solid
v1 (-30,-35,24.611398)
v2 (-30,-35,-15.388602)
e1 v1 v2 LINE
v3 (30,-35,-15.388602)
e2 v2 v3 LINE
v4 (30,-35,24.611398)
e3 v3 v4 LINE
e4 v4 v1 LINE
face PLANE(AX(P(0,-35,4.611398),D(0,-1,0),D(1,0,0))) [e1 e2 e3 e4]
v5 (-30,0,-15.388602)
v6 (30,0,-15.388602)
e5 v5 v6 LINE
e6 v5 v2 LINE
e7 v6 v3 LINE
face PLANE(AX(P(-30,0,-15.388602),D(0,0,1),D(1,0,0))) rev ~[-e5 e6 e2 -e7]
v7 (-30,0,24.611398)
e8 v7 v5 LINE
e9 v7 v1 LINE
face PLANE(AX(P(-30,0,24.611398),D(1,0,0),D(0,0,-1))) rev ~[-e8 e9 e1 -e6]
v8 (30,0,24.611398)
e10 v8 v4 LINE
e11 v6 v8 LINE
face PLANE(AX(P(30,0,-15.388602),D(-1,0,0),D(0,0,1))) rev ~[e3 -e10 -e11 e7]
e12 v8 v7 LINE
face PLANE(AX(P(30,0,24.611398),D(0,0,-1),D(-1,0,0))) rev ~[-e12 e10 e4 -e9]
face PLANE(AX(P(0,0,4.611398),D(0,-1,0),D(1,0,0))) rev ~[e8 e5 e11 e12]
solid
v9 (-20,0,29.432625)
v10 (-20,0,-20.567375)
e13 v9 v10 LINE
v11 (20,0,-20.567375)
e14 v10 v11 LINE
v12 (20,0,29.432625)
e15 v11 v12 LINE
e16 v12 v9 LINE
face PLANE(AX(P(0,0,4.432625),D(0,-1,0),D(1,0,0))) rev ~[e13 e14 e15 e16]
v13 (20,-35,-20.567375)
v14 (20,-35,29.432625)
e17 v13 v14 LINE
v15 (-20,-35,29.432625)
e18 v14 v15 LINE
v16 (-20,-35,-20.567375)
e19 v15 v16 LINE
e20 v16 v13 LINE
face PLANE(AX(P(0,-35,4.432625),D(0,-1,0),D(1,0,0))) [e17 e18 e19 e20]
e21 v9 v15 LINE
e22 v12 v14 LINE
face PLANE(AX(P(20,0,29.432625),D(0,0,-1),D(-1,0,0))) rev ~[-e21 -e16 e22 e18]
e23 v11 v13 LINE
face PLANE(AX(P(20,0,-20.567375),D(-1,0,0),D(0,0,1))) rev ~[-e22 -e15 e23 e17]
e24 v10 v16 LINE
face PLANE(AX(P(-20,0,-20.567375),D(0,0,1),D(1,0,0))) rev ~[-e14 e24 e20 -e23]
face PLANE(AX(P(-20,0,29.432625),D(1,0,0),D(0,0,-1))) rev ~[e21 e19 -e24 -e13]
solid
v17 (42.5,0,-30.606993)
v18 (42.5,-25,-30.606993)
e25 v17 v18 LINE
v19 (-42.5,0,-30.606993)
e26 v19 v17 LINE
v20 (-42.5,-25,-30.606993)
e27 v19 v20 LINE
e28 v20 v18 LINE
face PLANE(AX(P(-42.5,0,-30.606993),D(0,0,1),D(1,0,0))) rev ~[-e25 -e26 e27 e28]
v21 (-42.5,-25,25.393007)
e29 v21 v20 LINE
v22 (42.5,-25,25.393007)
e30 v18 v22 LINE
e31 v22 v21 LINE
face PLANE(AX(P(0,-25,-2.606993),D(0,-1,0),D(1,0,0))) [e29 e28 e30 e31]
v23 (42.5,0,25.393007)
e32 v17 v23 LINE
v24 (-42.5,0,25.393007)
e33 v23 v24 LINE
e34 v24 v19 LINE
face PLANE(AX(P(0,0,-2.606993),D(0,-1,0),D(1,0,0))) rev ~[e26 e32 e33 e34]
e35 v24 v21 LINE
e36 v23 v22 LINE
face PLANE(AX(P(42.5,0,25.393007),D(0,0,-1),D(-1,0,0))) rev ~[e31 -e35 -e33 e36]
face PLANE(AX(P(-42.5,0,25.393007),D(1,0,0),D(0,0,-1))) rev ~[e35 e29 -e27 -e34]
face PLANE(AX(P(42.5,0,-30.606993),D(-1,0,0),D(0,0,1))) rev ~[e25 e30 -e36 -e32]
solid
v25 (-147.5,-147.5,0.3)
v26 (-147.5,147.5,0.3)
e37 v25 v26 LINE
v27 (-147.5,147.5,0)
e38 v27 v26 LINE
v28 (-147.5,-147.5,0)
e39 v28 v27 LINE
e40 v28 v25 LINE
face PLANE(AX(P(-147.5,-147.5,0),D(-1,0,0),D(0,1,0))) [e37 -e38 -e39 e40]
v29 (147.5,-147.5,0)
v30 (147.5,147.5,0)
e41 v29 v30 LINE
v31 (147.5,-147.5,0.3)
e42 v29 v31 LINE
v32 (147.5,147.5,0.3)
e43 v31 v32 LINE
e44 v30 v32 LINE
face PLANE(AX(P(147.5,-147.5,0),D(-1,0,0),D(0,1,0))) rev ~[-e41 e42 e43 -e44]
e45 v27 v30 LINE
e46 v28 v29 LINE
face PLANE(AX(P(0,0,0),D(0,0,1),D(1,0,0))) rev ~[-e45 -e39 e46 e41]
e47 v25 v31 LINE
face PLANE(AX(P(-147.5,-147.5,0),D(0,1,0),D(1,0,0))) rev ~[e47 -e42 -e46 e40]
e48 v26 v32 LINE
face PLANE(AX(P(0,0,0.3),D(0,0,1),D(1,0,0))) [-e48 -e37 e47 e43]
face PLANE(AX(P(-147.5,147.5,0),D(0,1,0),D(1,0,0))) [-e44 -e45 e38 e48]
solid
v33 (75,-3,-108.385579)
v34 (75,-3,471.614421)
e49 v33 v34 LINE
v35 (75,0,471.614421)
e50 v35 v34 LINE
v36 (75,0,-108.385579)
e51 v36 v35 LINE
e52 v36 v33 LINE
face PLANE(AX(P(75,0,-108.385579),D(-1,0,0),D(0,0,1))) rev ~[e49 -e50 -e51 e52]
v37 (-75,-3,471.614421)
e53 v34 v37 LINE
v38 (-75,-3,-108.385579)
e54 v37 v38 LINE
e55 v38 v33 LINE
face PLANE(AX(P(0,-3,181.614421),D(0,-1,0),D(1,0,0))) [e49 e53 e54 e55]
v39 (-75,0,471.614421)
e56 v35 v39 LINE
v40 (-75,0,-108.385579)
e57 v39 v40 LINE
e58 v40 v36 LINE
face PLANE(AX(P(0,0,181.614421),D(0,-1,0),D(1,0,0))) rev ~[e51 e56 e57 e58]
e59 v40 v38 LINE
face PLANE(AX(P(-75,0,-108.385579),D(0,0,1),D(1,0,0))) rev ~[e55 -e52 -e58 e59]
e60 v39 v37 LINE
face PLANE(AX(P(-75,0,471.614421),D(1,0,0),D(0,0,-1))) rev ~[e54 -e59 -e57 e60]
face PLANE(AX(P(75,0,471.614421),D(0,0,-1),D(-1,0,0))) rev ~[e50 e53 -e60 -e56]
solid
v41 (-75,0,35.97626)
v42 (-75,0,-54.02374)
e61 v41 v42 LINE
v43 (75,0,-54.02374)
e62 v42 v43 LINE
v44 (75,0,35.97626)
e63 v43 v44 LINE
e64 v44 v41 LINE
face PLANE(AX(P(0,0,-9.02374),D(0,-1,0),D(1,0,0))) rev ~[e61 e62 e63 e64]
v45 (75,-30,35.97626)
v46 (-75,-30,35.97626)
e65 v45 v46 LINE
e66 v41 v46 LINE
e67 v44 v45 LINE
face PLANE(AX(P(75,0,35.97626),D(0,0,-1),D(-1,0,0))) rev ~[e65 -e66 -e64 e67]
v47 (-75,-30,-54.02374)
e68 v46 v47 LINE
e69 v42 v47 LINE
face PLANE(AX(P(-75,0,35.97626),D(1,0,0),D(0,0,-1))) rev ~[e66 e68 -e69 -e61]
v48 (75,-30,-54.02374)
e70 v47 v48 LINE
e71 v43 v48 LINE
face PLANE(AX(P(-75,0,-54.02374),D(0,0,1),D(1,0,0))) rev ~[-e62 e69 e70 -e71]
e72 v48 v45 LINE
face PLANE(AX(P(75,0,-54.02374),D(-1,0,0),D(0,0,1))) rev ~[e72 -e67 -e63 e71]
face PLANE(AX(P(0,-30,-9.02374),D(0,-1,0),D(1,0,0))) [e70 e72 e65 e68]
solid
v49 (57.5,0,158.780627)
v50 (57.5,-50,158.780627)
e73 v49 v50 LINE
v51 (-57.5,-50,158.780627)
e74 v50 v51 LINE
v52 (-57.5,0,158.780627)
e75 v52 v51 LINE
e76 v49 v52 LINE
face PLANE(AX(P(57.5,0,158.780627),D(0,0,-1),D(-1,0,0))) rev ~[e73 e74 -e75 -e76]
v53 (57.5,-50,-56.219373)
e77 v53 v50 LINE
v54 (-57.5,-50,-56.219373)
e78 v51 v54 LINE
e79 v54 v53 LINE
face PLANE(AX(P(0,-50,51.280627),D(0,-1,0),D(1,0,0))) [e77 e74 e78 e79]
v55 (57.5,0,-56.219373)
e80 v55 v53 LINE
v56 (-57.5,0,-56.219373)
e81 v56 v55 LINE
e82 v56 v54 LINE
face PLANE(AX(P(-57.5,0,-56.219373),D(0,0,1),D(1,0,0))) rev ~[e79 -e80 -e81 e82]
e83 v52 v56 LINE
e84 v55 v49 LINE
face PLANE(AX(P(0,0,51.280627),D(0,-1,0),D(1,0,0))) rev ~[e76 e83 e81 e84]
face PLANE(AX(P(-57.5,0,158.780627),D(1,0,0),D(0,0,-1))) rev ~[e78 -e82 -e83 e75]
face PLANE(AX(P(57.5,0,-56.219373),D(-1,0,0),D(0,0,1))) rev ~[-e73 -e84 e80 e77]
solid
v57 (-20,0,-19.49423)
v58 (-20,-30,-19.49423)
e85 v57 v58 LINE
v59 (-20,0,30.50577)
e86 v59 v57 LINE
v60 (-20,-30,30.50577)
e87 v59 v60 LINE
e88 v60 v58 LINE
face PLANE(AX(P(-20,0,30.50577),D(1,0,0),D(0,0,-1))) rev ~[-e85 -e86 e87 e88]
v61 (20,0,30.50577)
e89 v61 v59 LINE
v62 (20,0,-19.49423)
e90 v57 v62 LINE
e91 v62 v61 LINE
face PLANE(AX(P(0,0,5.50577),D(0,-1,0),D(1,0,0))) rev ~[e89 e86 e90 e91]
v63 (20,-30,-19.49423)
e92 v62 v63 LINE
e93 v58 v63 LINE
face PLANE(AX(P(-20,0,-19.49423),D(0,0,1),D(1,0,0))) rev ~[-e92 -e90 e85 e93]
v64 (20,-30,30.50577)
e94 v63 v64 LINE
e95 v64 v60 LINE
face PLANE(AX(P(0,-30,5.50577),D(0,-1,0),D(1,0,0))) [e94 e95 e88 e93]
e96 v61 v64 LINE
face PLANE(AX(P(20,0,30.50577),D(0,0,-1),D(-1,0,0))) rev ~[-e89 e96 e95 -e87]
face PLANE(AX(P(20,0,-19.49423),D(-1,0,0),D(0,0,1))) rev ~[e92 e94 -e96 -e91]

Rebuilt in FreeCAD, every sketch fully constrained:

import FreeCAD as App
import Part
import Sketcher
from FreeCAD import Vector
Q = App.Units.Quantity

doc = App.newDocument("Part")
params = doc.addObject("Spreadsheet::Sheet", "Params")
for row, (alias, value) in enumerate([
    ("sketch1_width", "115 mm"),
    ("sketch1_height", "215 mm"),
    ("pad1_length", "50 mm"),
    ("sketch2_width", "85 mm"),
    ("sketch2_height", "56 mm"),
    ("pad2_length", "25 mm"),
    ("sketch3_width", "60 mm"),
    ("sketch3_height", "40 mm"),
    ("pad3_length", "35 mm"),
    ("sketch4_width", "150 mm"),
    ("sketch4_height", "90 mm"),
    ("pad4_length", "30 mm"),
    ("sketch5_width", "150 mm"),
    ("sketch5_height", "580 mm"),
    ("pad5_length", "3 mm"),
    ("sketch6_width", "40 mm"),
    ("sketch6_height", "50 mm"),
    ("pad6_length", "30 mm"),
    ("sketch7_width", "40 mm"),
    ("sketch7_height", "50 mm"),
    ("pad7_length", "35 mm"),
    ("sketch8_width", "295 mm"),
    ("pad8_length", "0.3 mm"),
], start=1):
    params.set(f"A{row}", alias)
    params.set(f"B{row}", "=" + value)
    params.setAlias(f"B{row}", alias)

body = doc.addObject("PartDesign::Body", "Body")

# Sketch on XZ plane
sketch1 = doc.addObject("Sketcher::SketchObject", "Sketch")
body.addObject(sketch1)
sketch1.AttachmentSupport = (doc.XZ_Plane, [""])
sketch1.MapMode = "FlatFace"
sketch1.addGeometry(Part.LineSegment(Vector(57.5, 158.780627, 0), Vector(-57.5, 158.780627, 0)), False)
sketch1.addGeometry(Part.LineSegment(Vector(-57.5, 158.780627, 0), Vector(-57.5, -56.219373, 0)), False)
sketch1.addGeometry(Part.LineSegment(Vector(-57.5, -56.219373, 0), Vector(57.5, -56.219373, 0)), False)
sketch1.addGeometry(Part.LineSegment(Vector(57.5, -56.219373, 0), Vector(57.5, 158.780627, 0)), False)
sketch1.addConstraint(Sketcher.Constraint("Coincident", 0, 2, 1, 1))
sketch1.addConstraint(Sketcher.Constraint("Coincident", 1, 2, 2, 1))
sketch1.addConstraint(Sketcher.Constraint("Coincident", 2, 2, 3, 1))
sketch1.addConstraint(Sketcher.Constraint("Coincident", 3, 2, 0, 1))
sketch1.addConstraint(Sketcher.Constraint("Horizontal", 0))
sketch1.addConstraint(Sketcher.Constraint("Vertical", 1))
sketch1.addConstraint(Sketcher.Constraint("Horizontal", 2))
sketch1.addConstraint(Sketcher.Constraint("Vertical", 3))
sketch1.addConstraint(Sketcher.Constraint("DistanceX", 0, 2, 0, 1, Q("115 mm")))
sketch1.addConstraint(Sketcher.Constraint("DistanceY", 1, 2, 1, 1, Q("215 mm")))
sketch1.addConstraint(Sketcher.Constraint("DistanceX", 0, 2, -1, 1, Q("57.5 mm")))
sketch1.addConstraint(Sketcher.Constraint("DistanceY", -1, 1, 0, 2, Q("158.780627 mm")))
sketch1.setExpression("Constraints[8]", "Params.sketch1_width")
sketch1.setExpression("Constraints[9]", "Params.sketch1_height")
pad1 = doc.addObject("PartDesign::Pad", "Pad")
body.addObject(pad1)
pad1.Profile = sketch1
pad1.setExpression("Length", "Params.pad1_length")
body2 = doc.addObject("PartDesign::Body", "Body001")

# Sketch on XZ plane
sketch2 = doc.addObject("Sketcher::SketchObject", "Sketch001")
body2.addObject(sketch2)
sketch2.AttachmentSupport = (doc.getObject("XZ_Plane001"), [""])
sketch2.MapMode = "FlatFace"
sketch2.addGeometry(Part.LineSegment(Vector(42.5, 25.393007, 0), Vector(-42.5, 25.393007, 0)), False)
sketch2.addGeometry(Part.LineSegment(Vector(-42.5, 25.393007, 0), Vector(-42.5, -30.606993, 0)), False)
sketch2.addGeometry(Part.LineSegment(Vector(-42.5, -30.606993, 0), Vector(42.5, -30.606993, 0)), False)
sketch2.addGeometry(Part.LineSegment(Vector(42.5, -30.606993, 0), Vector(42.5, 25.393007, 0)), False)
sketch2.addConstraint(Sketcher.Constraint("Coincident", 0, 2, 1, 1))
sketch2.addConstraint(Sketcher.Constraint("Coincident", 1, 2, 2, 1))
sketch2.addConstraint(Sketcher.Constraint("Coincident", 2, 2, 3, 1))
sketch2.addConstraint(Sketcher.Constraint("Coincident", 3, 2, 0, 1))
sketch2.addConstraint(Sketcher.Constraint("Horizontal", 0))
sketch2.addConstraint(Sketcher.Constraint("Vertical", 1))
sketch2.addConstraint(Sketcher.Constraint("Horizontal", 2))
sketch2.addConstraint(Sketcher.Constraint("Vertical", 3))
sketch2.addConstraint(Sketcher.Constraint("DistanceX", 0, 2, 0, 1, Q("85 mm")))
sketch2.addConstraint(Sketcher.Constraint("DistanceY", 1, 2, 1, 1, Q("56 mm")))
sketch2.addConstraint(Sketcher.Constraint("DistanceX", 0, 2, -1, 1, Q("42.5 mm")))
sketch2.addConstraint(Sketcher.Constraint("DistanceY", -1, 1, 0, 2, Q("25.393007 mm")))
sketch2.setExpression("Constraints[8]", "Params.sketch2_width")
sketch2.setExpression("Constraints[9]", "Params.sketch2_height")
pad2 = doc.addObject("PartDesign::Pad", "Pad001")
body2.addObject(pad2)
pad2.Profile = sketch2
pad2.setExpression("Length", "Params.pad2_length")
body3 = doc.addObject("PartDesign::Body", "Body002")

# Sketch on XZ plane
sketch3 = doc.addObject("Sketcher::SketchObject", "Sketch002")
body3.addObject(sketch3)
sketch3.AttachmentSupport = (doc.getObject("XZ_Plane002"), [""])
sketch3.MapMode = "FlatFace"
sketch3.addGeometry(Part.LineSegment(Vector(30, 24.611398, 0), Vector(-30, 24.611398, 0)), False)
sketch3.addGeometry(Part.LineSegment(Vector(-30, 24.611398, 0), Vector(-30, -15.388602, 0)), False)
sketch3.addGeometry(Part.LineSegment(Vector(-30, -15.388602, 0), Vector(30, -15.388602, 0)), False)
sketch3.addGeometry(Part.LineSegment(Vector(30, -15.388602, 0), Vector(30, 24.611398, 0)), False)
sketch3.addConstraint(Sketcher.Constraint("Coincident", 0, 2, 1, 1))
sketch3.addConstraint(Sketcher.Constraint("Coincident", 1, 2, 2, 1))
sketch3.addConstraint(Sketcher.Constraint("Coincident", 2, 2, 3, 1))
sketch3.addConstraint(Sketcher.Constraint("Coincident", 3, 2, 0, 1))
sketch3.addConstraint(Sketcher.Constraint("Horizontal", 0))
sketch3.addConstraint(Sketcher.Constraint("Vertical", 1))
sketch3.addConstraint(Sketcher.Constraint("Horizontal", 2))
sketch3.addConstraint(Sketcher.Constraint("Vertical", 3))
sketch3.addConstraint(Sketcher.Constraint("DistanceX", 0, 2, 0, 1, Q("60 mm")))
sketch3.addConstraint(Sketcher.Constraint("DistanceY", 1, 2, 1, 1, Q("40 mm")))
sketch3.addConstraint(Sketcher.Constraint("DistanceX", 0, 2, -1, 1, Q("30 mm")))
sketch3.addConstraint(Sketcher.Constraint("DistanceY", -1, 1, 0, 2, Q("24.611398 mm")))
sketch3.setExpression("Constraints[8]", "Params.sketch3_width")
sketch3.setExpression("Constraints[9]", "Params.sketch3_height")
pad3 = doc.addObject("PartDesign::Pad", "Pad002")
body3.addObject(pad3)
pad3.Profile = sketch3
pad3.setExpression("Length", "Params.pad3_length")
body4 = doc.addObject("PartDesign::Body", "Body003")

# Sketch on XZ plane
sketch4 = doc.addObject("Sketcher::SketchObject", "Sketch003")
body4.addObject(sketch4)
sketch4.AttachmentSupport = (doc.getObject("XZ_Plane003"), [""])
sketch4.MapMode = "FlatFace"
sketch4.addGeometry(Part.LineSegment(Vector(75, 35.97626, 0), Vector(-75, 35.97626, 0)), False)
sketch4.addGeometry(Part.LineSegment(Vector(-75, 35.97626, 0), Vector(-75, -54.02374, 0)), False)
sketch4.addGeometry(Part.LineSegment(Vector(-75, -54.02374, 0), Vector(75, -54.02374, 0)), False)
sketch4.addGeometry(Part.LineSegment(Vector(75, -54.02374, 0), Vector(75, 35.97626, 0)), False)
sketch4.addConstraint(Sketcher.Constraint("Coincident", 0, 2, 1, 1))
sketch4.addConstraint(Sketcher.Constraint("Coincident", 1, 2, 2, 1))
sketch4.addConstraint(Sketcher.Constraint("Coincident", 2, 2, 3, 1))
sketch4.addConstraint(Sketcher.Constraint("Coincident", 3, 2, 0, 1))
sketch4.addConstraint(Sketcher.Constraint("Horizontal", 0))
sketch4.addConstraint(Sketcher.Constraint("Vertical", 1))
sketch4.addConstraint(Sketcher.Constraint("Horizontal", 2))
sketch4.addConstraint(Sketcher.Constraint("Vertical", 3))
sketch4.addConstraint(Sketcher.Constraint("DistanceX", 0, 2, 0, 1, Q("150 mm")))
sketch4.addConstraint(Sketcher.Constraint("DistanceY", 1, 2, 1, 1, Q("90 mm")))
sketch4.addConstraint(Sketcher.Constraint("DistanceX", 0, 2, -1, 1, Q("75 mm")))
sketch4.addConstraint(Sketcher.Constraint("DistanceY", -1, 1, 0, 2, Q("35.97626 mm")))
sketch4.setExpression("Constraints[8]", "Params.sketch4_width")
sketch4.setExpression("Constraints[9]", "Params.sketch4_height")
pad4 = doc.addObject("PartDesign::Pad", "Pad003")
body4.addObject(pad4)
pad4.Profile = sketch4
pad4.setExpression("Length", "Params.pad4_length")
body5 = doc.addObject("PartDesign::Body", "Body004")

# Sketch on XZ plane
sketch5 = doc.addObject("Sketcher::SketchObject", "Sketch004")
body5.addObject(sketch5)
sketch5.AttachmentSupport = (doc.getObject("XZ_Plane004"), [""])
sketch5.MapMode = "FlatFace"
sketch5.addGeometry(Part.LineSegment(Vector(75, 471.614421, 0), Vector(-75, 471.614421, 0)), False)
sketch5.addGeometry(Part.LineSegment(Vector(-75, 471.614421, 0), Vector(-75, -108.385579, 0)), False)
sketch5.addGeometry(Part.LineSegment(Vector(-75, -108.385579, 0), Vector(75, -108.385579, 0)), False)
sketch5.addGeometry(Part.LineSegment(Vector(75, -108.385579, 0), Vector(75, 471.614421, 0)), False)
sketch5.addConstraint(Sketcher.Constraint("Coincident", 0, 2, 1, 1))
sketch5.addConstraint(Sketcher.Constraint("Coincident", 1, 2, 2, 1))
sketch5.addConstraint(Sketcher.Constraint("Coincident", 2, 2, 3, 1))
sketch5.addConstraint(Sketcher.Constraint("Coincident", 3, 2, 0, 1))
sketch5.addConstraint(Sketcher.Constraint("Horizontal", 0))
sketch5.addConstraint(Sketcher.Constraint("Vertical", 1))
sketch5.addConstraint(Sketcher.Constraint("Horizontal", 2))
sketch5.addConstraint(Sketcher.Constraint("Vertical", 3))
sketch5.addConstraint(Sketcher.Constraint("DistanceX", 0, 2, 0, 1, Q("150 mm")))
sketch5.addConstraint(Sketcher.Constraint("DistanceY", 1, 2, 1, 1, Q("580 mm")))
sketch5.addConstraint(Sketcher.Constraint("DistanceX", 0, 2, -1, 1, Q("75 mm")))
sketch5.addConstraint(Sketcher.Constraint("DistanceY", -1, 1, 0, 2, Q("471.614421 mm")))
sketch5.setExpression("Constraints[8]", "Params.sketch5_width")
sketch5.setExpression("Constraints[9]", "Params.sketch5_height")
pad5 = doc.addObject("PartDesign::Pad", "Pad004")
body5.addObject(pad5)
pad5.Profile = sketch5
pad5.setExpression("Length", "Params.pad5_length")
body6 = doc.addObject("PartDesign::Body", "Body005")

# Sketch on XZ plane
sketch6 = doc.addObject("Sketcher::SketchObject", "Sketch005")
body6.addObject(sketch6)
sketch6.AttachmentSupport = (doc.getObject("XZ_Plane005"), [""])
sketch6.MapMode = "FlatFace"
sketch6.addGeometry(Part.LineSegment(Vector(20, 30.50577, 0), Vector(-20, 30.50577, 0)), False)
sketch6.addGeometry(Part.LineSegment(Vector(-20, 30.50577, 0), Vector(-20, -19.49423, 0)), False)
sketch6.addGeometry(Part.LineSegment(Vector(-20, -19.49423, 0), Vector(20, -19.49423, 0)), False)
sketch6.addGeometry(Part.LineSegment(Vector(20, -19.49423, 0), Vector(20, 30.50577, 0)), False)
sketch6.addConstraint(Sketcher.Constraint("Coincident", 0, 2, 1, 1))
sketch6.addConstraint(Sketcher.Constraint("Coincident", 1, 2, 2, 1))
sketch6.addConstraint(Sketcher.Constraint("Coincident", 2, 2, 3, 1))
sketch6.addConstraint(Sketcher.Constraint("Coincident", 3, 2, 0, 1))
sketch6.addConstraint(Sketcher.Constraint("Horizontal", 0))
sketch6.addConstraint(Sketcher.Constraint("Vertical", 1))
sketch6.addConstraint(Sketcher.Constraint("Horizontal", 2))
sketch6.addConstraint(Sketcher.Constraint("Vertical", 3))
sketch6.addConstraint(Sketcher.Constraint("DistanceX", 0, 2, 0, 1, Q("40 mm")))
sketch6.addConstraint(Sketcher.Constraint("DistanceY", 1, 2, 1, 1, Q("50 mm")))
sketch6.addConstraint(Sketcher.Constraint("DistanceX", 0, 2, -1, 1, Q("20 mm")))
sketch6.addConstraint(Sketcher.Constraint("DistanceY", -1, 1, 0, 2, Q("30.50577 mm")))
sketch6.setExpression("Constraints[8]", "Params.sketch6_width")
sketch6.setExpression("Constraints[9]", "Params.sketch6_height")
pad6 = doc.addObject("PartDesign::Pad", "Pad005")
body6.addObject(pad6)
pad6.Profile = sketch6
pad6.setExpression("Length", "Params.pad6_length")
body7 = doc.addObject("PartDesign::Body", "Body006")

# Sketch on XZ plane
sketch7 = doc.addObject("Sketcher::SketchObject", "Sketch006")
body7.addObject(sketch7)
sketch7.AttachmentSupport = (doc.getObject("XZ_Plane006"), [""])
sketch7.MapMode = "FlatFace"
sketch7.addGeometry(Part.LineSegment(Vector(20, 29.432625, 0), Vector(-20, 29.432625, 0)), False)
sketch7.addGeometry(Part.LineSegment(Vector(-20, 29.432625, 0), Vector(-20, -20.567375, 0)), False)
sketch7.addGeometry(Part.LineSegment(Vector(-20, -20.567375, 0), Vector(20, -20.567375, 0)), False)
sketch7.addGeometry(Part.LineSegment(Vector(20, -20.567375, 0), Vector(20, 29.432625, 0)), False)
sketch7.addConstraint(Sketcher.Constraint("Coincident", 0, 2, 1, 1))
sketch7.addConstraint(Sketcher.Constraint("Coincident", 1, 2, 2, 1))
sketch7.addConstraint(Sketcher.Constraint("Coincident", 2, 2, 3, 1))
sketch7.addConstraint(Sketcher.Constraint("Coincident", 3, 2, 0, 1))
sketch7.addConstraint(Sketcher.Constraint("Horizontal", 0))
sketch7.addConstraint(Sketcher.Constraint("Vertical", 1))
sketch7.addConstraint(Sketcher.Constraint("Horizontal", 2))
sketch7.addConstraint(Sketcher.Constraint("Vertical", 3))
sketch7.addConstraint(Sketcher.Constraint("DistanceX", 0, 2, 0, 1, Q("40 mm")))
sketch7.addConstraint(Sketcher.Constraint("DistanceY", 1, 2, 1, 1, Q("50 mm")))
sketch7.addConstraint(Sketcher.Constraint("DistanceX", 0, 2, -1, 1, Q("20 mm")))
sketch7.addConstraint(Sketcher.Constraint("DistanceY", -1, 1, 0, 2, Q("29.432625 mm")))
sketch7.setExpression("Constraints[8]", "Params.sketch7_width")
sketch7.setExpression("Constraints[9]", "Params.sketch7_height")
pad7 = doc.addObject("PartDesign::Pad", "Pad006")
body7.addObject(pad7)
pad7.Profile = sketch7
pad7.setExpression("Length", "Params.pad7_length")
body8 = doc.addObject("PartDesign::Body", "Body007")

# Sketch on XY plane
sketch8 = doc.addObject("Sketcher::SketchObject", "Sketch007")
body8.addObject(sketch8)
sketch8.AttachmentSupport = (doc.getObject("XY_Plane007"), [""])
sketch8.MapMode = "FlatFace"
sketch8.addGeometry(Part.LineSegment(Vector(-147.5, 147.5, 0), Vector(-147.5, -147.5, 0)), False)
sketch8.addGeometry(Part.LineSegment(Vector(-147.5, -147.5, 0), Vector(147.5, -147.5, 0)), False)
sketch8.addGeometry(Part.LineSegment(Vector(147.5, -147.5, 0), Vector(147.5, 147.5, 0)), False)
sketch8.addGeometry(Part.LineSegment(Vector(147.5, 147.5, 0), Vector(-147.5, 147.5, 0)), False)
sketch8.addConstraint(Sketcher.Constraint("Coincident", 0, 2, 1, 1))
sketch8.addConstraint(Sketcher.Constraint("Coincident", 1, 2, 2, 1))
sketch8.addConstraint(Sketcher.Constraint("Coincident", 2, 2, 3, 1))
sketch8.addConstraint(Sketcher.Constraint("Coincident", 3, 2, 0, 1))
sketch8.addConstraint(Sketcher.Constraint("Vertical", 0))
sketch8.addConstraint(Sketcher.Constraint("Horizontal", 1))
sketch8.addConstraint(Sketcher.Constraint("Vertical", 2))
sketch8.addConstraint(Sketcher.Constraint("Horizontal", 3))
sketch8.addConstraint(Sketcher.Constraint("Symmetric", 0, 2, 2, 2, -1, 1))
sketch8.addConstraint(Sketcher.Constraint("Equal", 3, 0))
sketch8.addConstraint(Sketcher.Constraint("DistanceX", 1, 1, 1, 2, Q("295 mm")))
sketch8.setExpression("Constraints[10]", "Params.sketch8_width")
pad8 = doc.addObject("PartDesign::Pad", "Pad007")
body8.addObject(pad8)
pad8.Profile = sketch8
pad8.setExpression("Length", "Params.pad8_length")

doc.recompute()
